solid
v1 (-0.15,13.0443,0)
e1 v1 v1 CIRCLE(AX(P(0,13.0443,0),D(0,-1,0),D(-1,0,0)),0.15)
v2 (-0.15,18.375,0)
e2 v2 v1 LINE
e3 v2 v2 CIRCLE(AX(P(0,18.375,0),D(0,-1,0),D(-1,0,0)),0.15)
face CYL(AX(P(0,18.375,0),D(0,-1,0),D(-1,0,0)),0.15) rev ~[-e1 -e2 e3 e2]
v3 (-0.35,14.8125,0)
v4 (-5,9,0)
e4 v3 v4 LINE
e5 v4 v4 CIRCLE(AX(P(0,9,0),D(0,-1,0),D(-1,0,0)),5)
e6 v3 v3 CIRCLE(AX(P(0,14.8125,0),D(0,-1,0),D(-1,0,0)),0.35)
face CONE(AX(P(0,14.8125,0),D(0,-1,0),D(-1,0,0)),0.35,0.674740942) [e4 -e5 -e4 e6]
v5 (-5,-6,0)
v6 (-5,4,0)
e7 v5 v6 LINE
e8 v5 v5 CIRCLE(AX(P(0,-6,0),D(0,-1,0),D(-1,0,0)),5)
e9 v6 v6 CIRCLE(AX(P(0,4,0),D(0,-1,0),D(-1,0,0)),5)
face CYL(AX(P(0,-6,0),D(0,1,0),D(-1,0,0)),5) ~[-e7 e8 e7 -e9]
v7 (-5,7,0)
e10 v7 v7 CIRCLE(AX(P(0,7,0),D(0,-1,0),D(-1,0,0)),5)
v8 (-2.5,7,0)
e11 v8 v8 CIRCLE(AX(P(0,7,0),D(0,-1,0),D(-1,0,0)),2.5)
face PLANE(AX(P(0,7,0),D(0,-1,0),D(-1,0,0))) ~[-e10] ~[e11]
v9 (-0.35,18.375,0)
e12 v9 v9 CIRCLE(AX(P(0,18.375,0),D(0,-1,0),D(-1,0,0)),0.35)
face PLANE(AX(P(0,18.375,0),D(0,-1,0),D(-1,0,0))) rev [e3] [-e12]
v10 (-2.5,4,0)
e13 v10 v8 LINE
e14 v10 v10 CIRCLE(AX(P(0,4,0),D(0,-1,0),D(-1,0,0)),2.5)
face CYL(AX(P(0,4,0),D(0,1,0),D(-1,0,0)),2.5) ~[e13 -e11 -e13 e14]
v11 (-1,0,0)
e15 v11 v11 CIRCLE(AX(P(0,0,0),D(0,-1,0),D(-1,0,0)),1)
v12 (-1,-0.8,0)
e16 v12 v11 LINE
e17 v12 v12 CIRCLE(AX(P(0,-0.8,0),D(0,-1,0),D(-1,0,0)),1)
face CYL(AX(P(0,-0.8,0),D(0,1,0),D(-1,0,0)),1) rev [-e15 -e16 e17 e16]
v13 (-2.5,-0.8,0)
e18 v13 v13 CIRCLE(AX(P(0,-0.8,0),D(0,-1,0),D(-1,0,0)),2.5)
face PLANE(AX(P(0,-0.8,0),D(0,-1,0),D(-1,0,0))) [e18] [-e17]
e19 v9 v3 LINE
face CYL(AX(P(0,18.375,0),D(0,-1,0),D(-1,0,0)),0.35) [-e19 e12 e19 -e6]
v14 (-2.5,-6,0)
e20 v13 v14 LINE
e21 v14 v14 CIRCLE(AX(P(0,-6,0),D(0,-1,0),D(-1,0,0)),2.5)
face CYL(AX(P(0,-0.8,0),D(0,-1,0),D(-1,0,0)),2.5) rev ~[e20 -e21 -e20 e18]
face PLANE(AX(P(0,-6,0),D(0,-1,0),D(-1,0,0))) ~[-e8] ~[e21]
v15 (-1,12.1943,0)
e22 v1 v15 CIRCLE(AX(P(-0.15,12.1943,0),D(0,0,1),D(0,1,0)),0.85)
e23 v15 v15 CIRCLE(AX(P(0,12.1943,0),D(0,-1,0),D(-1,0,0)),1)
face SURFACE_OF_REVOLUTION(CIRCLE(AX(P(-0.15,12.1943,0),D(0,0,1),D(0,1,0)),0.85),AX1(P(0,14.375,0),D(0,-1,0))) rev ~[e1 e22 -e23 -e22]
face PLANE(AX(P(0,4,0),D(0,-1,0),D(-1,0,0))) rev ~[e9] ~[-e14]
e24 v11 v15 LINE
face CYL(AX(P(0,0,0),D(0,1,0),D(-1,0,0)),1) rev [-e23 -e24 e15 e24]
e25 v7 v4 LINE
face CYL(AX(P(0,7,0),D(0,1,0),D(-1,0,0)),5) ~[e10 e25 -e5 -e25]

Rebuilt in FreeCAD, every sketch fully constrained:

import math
import FreeCAD as App
import Part
import Sketcher
Q = App.Units.Quantity

doc = App.newDocument("Part")
body = doc.addObject("PartDesign::Body", "Body")

sketch1 = doc.addObject("Sketcher::SketchObject", "Sketch")
body.addObject(sketch1)
sketch1.AttachmentSupport = (doc.XY_Plane, [""])
sketch1.MapMode = "FlatFace"
sketch1.addGeometry([
    Part.LineSegment(App.Vector(-2.5, -6, 0), App.Vector(-2.5, -0.8, 0)),
    Part.LineSegment(App.Vector(-2.5, -0.8, 0), App.Vector(-1, -0.8, 0)),
    Part.LineSegment(App.Vector(-1, -0.8, 0), App.Vector(-1, 12.1943, 0)),
    Part.ArcOfCircle(Part.Circle(App.Vector(-0.15, 12.1943, 0), App.Vector(0, 0, 1), 0.85), math.radians(90), math.radians(180)),
    Part.LineSegment(App.Vector(-0.15, 13.0443, 0), App.Vector(-0.15, 18.375, 0)),
    Part.LineSegment(App.Vector(-0.15, 18.375, 0), App.Vector(-0.35, 18.375, 0)),
    Part.LineSegment(App.Vector(-0.35, 18.375, 0), App.Vector(-0.35, 14.8125, 0)),
    Part.LineSegment(App.Vector(-0.35, 14.8125, 0), App.Vector(-5, 9, 0)),
    Part.LineSegment(App.Vector(-5, 9, 0), App.Vector(-5, 7, 0)),
    Part.LineSegment(App.Vector(-5, 7, 0), App.Vector(-2.5, 7, 0)),
    Part.LineSegment(App.Vector(-2.5, 7, 0), App.Vector(-2.5, 4, 0)),
    Part.LineSegment(App.Vector(-2.5, 4, 0), App.Vector(-5, 4, 0)),
    Part.LineSegment(App.Vector(-5, 4, 0), App.Vector(-5, -6, 0)),
    Part.LineSegment(App.Vector(-5, -6, 0), App.Vector(-2.5, -6, 0)),
], False)
sketch1.addConstraint([
    Sketcher.Constraint("Coincident", 0, 2, 1, 1),
    Sketcher.Constraint("Coincident", 1, 2, 2, 1),
    Sketcher.Constraint("Tangent", 2, 2, 3, 2),
    Sketcher.Constraint("Coincident", 3, 1, 4, 1),
    Sketcher.Constraint("Coincident", 4, 2, 5, 1),
    Sketcher.Constraint("Coincident", 5, 2, 6, 1),
    Sketcher.Constraint("Coincident", 6, 2, 7, 1),
    Sketcher.Constraint("Coincident", 7, 2, 8, 1),
    Sketcher.Constraint("Coincident", 8, 2, 9, 1),
    Sketcher.Constraint("Coincident", 9, 2, 10, 1),
    Sketcher.Constraint("Coincident", 10, 2, 11, 1),
    Sketcher.Constraint("Coincident", 11, 2, 12, 1),
    Sketcher.Constraint("Coincident", 12, 2, 13, 1),
    Sketcher.Constraint("Coincident", 13, 2, 0, 1),
    Sketcher.Constraint("Vertical", 0),
    Sketcher.Constraint("Horizontal", 1),
    Sketcher.Constraint("Vertical", 2),
    Sketcher.Constraint("Vertical", 4),
    Sketcher.Constraint("Horizontal", 5),
    Sketcher.Constraint("Vertical", 6),
    Sketcher.Constraint("Vertical", 8),
    Sketcher.Constraint("Horizontal", 9),
    Sketcher.Constraint("Vertical", 10),
    Sketcher.Constraint("Horizontal", 11),
    Sketcher.Constraint("Vertical", 12),
    Sketcher.Constraint("Horizontal", 13),
    Sketcher.Constraint("Vertical", 0, 2, 9, 2),
    Sketcher.Constraint("Vertical", 8, 2, 11, 2),
    Sketcher.Constraint("DistanceY", 8, 2, 8, 1, 2.0),
    Sketcher.Constraint("DistanceY", 10, 2, 10, 1, 3.0),
    Sketcher.Constraint("DistanceY", 12, 2, 12, 1, 10.0),
    Sketcher.Constraint("DistanceX", 9, 1, 9, 2, 2.5),
    Sketcher.Constraint("DistanceY", 0, 1, 0, 2, 5.2),
    Sketcher.Constraint("DistanceX", 1, 2, -1, 1, 1.0),
    Sketcher.Constraint("DistanceX", 0, 2, -1, 1, 2.5),
    Sketcher.Constraint("DistanceX", 3, 3, -1, 1, 0.15),
    Sketcher.Constraint("DistanceX", 3, 1, -1, 1, 0.15),
    Sketcher.Constraint("DistanceX", 5, 2, -1, 1, 0.35),
    Sketcher.Constraint("DistanceY", 6, 2, 6, 1, 3.5625),
    Sketcher.Constraint("DistanceY", -1, 1, 7, 2, 9.0),
    Sketcher.Constraint("Angle", 7, Q("-128.6598 deg")),
    Sketcher.Constraint("DistanceY", 1, 2, 3, 1, 13.8443),
])
revolution = doc.addObject("PartDesign::Revolution", "Revolution")
body.addObject(revolution)
revolution.Profile = sketch1
revolution.ReferenceAxis = (sketch1, ["V_Axis"])
revolution.Angle = 360

doc.recompute()
